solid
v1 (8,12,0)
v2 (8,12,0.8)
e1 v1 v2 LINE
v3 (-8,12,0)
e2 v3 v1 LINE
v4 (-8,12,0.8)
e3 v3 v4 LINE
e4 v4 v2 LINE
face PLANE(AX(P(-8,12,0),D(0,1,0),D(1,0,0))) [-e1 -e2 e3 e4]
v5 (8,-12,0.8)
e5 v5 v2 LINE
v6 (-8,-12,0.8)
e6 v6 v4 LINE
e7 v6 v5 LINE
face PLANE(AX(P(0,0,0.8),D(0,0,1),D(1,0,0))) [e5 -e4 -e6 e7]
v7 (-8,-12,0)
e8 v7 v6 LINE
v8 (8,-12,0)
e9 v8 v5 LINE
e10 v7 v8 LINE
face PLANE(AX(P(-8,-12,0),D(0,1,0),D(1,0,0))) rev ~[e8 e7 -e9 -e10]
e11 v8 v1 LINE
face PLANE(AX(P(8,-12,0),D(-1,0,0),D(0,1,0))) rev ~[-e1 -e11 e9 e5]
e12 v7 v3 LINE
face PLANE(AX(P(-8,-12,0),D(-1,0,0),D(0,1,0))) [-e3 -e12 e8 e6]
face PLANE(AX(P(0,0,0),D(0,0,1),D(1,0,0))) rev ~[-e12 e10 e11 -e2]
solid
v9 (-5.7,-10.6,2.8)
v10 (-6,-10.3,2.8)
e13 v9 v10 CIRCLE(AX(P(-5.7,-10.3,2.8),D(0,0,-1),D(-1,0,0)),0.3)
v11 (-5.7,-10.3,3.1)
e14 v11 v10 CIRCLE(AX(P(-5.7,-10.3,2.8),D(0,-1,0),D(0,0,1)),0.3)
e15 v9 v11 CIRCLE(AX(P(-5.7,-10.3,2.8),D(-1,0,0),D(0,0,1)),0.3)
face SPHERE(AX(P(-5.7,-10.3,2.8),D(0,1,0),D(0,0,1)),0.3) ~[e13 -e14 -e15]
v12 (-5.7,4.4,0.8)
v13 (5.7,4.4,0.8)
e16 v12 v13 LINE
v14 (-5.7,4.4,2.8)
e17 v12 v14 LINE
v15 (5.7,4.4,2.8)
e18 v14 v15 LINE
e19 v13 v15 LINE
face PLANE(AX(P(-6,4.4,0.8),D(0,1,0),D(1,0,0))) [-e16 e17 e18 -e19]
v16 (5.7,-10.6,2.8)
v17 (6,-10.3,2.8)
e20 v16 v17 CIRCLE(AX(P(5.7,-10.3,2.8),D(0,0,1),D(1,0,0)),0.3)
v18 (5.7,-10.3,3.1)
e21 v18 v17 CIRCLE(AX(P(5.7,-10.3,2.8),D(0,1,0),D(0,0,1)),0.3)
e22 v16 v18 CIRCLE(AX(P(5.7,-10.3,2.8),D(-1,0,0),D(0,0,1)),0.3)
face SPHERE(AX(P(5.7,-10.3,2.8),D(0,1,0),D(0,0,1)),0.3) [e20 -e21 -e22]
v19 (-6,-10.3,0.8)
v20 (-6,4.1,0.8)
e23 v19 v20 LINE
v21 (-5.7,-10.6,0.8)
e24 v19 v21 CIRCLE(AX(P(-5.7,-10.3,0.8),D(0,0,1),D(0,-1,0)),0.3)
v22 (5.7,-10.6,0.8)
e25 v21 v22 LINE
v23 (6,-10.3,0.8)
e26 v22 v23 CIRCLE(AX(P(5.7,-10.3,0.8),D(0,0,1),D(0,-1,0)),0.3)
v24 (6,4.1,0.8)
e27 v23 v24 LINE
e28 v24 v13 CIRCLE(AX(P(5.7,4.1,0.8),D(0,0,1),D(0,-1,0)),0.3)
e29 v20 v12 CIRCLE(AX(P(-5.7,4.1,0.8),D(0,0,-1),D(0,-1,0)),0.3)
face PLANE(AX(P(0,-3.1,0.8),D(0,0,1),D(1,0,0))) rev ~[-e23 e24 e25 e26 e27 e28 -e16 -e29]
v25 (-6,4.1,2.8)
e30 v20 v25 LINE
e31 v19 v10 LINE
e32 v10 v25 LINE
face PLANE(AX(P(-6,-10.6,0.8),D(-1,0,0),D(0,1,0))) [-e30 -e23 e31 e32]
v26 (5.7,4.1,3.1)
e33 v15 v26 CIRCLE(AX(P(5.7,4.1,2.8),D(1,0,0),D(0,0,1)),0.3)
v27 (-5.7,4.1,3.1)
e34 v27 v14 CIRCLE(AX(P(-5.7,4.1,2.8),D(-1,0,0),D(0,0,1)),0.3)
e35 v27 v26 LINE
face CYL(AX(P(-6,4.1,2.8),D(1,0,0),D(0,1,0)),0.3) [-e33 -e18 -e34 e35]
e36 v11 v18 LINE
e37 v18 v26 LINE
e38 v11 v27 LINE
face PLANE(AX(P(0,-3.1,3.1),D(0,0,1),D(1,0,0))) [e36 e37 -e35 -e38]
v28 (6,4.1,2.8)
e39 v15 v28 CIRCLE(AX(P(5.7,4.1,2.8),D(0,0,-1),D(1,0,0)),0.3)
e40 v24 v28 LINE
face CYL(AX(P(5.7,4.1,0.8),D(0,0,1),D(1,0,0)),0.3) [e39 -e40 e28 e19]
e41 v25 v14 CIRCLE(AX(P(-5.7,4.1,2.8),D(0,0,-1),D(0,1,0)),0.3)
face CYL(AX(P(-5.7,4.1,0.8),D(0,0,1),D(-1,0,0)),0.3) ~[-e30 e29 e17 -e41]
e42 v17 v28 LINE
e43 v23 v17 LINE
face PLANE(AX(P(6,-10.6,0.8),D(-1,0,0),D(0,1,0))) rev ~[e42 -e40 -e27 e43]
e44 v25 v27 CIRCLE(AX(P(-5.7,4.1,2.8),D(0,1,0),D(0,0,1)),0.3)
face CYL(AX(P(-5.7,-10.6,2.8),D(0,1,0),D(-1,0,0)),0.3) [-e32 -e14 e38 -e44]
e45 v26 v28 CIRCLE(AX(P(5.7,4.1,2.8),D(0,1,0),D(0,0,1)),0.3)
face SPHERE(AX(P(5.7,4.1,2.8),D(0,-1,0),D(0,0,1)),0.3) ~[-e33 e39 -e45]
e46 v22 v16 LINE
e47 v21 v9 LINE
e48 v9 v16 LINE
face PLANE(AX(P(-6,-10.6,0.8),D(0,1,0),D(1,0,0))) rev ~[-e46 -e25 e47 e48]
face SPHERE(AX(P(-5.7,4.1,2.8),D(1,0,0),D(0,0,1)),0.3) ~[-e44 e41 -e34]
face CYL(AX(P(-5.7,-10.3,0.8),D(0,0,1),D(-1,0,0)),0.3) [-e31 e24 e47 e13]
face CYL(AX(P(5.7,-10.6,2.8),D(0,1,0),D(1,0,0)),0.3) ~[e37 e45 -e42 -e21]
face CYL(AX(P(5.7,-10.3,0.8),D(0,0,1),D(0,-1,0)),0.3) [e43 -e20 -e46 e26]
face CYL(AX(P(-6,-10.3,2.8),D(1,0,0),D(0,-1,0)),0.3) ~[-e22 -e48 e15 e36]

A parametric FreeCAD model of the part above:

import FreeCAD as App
import Part
import Sketcher


def edges_at(feature, points):
    """Names of the edges that pass closest to the given points."""
    edges = feature.Shape.Edges
    near = lambda p: min(range(len(edges)), key=lambda i: edges[i].distToShape(Part.Vertex(*p))[0])
    return sorted({f"Edge{near(p) + 1}" for p in points})

doc = App.newDocument("Part")
params = doc.addObject("Spreadsheet::Sheet", "Params")
for row, (alias, value) in enumerate([
    ("sketch1_width", "16 mm"),
    ("sketch1_height", "24 mm"),
    ("pad1_length", "0.8 mm"),
    ("sketch2_width", "12 mm"),
    ("sketch2_height", "15 mm"),
    ("pad2_length", "2.3 mm"),
    ("fillet_radius", "0.3 mm"),
], start=1):
    params.set(f"A{row}", alias)
    params.set(f"B{row}", "=" + value)
    params.setAlias(f"B{row}", alias)

body = doc.addObject("PartDesign::Body", "Body")

sketch1 = doc.addObject("Sketcher::SketchObject", "Sketch")
body.addObject(sketch1)
sketch1.AttachmentSupport = (doc.XY_Plane, [""])
sketch1.MapMode = "FlatFace"
sketch1.addGeometry(Part.LineSegment(App.Vector(-8, 12, 0), App.Vector(-8, -12, 0)), False)
sketch1.addGeometry(Part.LineSegment(App.Vector(-8, -12, 0), App.Vector(8, -12, 0)), False)
sketch1.addGeometry(Part.LineSegment(App.Vector(8, -12, 0), App.Vector(8, 12, 0)), False)
sketch1.addGeometry(Part.LineSegment(App.Vector(8, 12, 0), App.Vector(-8, 12, 0)), False)
sketch1.addConstraint(Sketcher.Constraint("Coincident", 0, 2, 1, 1))
sketch1.addConstraint(Sketcher.Constraint("Coincident", 1, 2, 2, 1))
sketch1.addConstraint(Sketcher.Constraint("Coincident", 2, 2, 3, 1))
sketch1.addConstraint(Sketcher.Constraint("Coincident", 3, 2, 0, 1))
sketch1.addConstraint(Sketcher.Constraint("Vertical", 0))
sketch1.addConstraint(Sketcher.Constraint("Horizontal", 1))
sketch1.addConstraint(Sketcher.Constraint("Vertical", 2))
sketch1.addConstraint(Sketcher.Constraint("Horizontal", 3))
sketch1.addConstraint(Sketcher.Constraint("Symmetric", 0, 2, 2, 2, -1, 1))
sketch1.addConstraint(Sketcher.Constraint("DistanceX", 1, 1, 1, 2, 16.0))
sketch1.addConstraint(Sketcher.Constraint("DistanceY", 0, 2, 0, 1, 24.0))
sketch1.setExpression("Constraints[9]", "Params.sketch1_width")
sketch1.setExpression("Constraints[10]", "Params.sketch1_height")
pad1 = doc.addObject("PartDesign::Pad", "Pad")
body.addObject(pad1)
pad1.Profile = sketch1
pad1.setExpression("Length", "Params.pad1_length")
body2 = doc.addObject("PartDesign::Body", "Body001")

sketch2 = doc.addObject("Sketcher::SketchObject", "Sketch001")
body2.addObject(sketch2)
sketch2.AttachmentSupport = (doc.getObject("XY_Plane001"), [""])
sketch2.MapMode = "FlatFace"
sketch2.AttachmentOffset = App.Placement(App.Vector(0, 0, 0.8), App.Rotation())
sketch2.addGeometry(Part.LineSegment(App.Vector(-6, 4, 0), App.Vector(-6, -11, 0)), False)
sketch2.addGeometry(Part.LineSegment(App.Vector(-6, -11, 0), App.Vector(6, -11, 0)), False)
sketch2.addGeometry(Part.LineSegment(App.Vector(6, -11, 0), App.Vector(6, 4, 0)), False)
sketch2.addGeometry(Part.LineSegment(App.Vector(6, 4, 0), App.Vector(-6, 4, 0)), False)
sketch2.addConstraint(Sketcher.Constraint("Coincident", 0, 2, 1, 1))
sketch2.addConstraint(Sketcher.Constraint("Coincident", 1, 2, 2, 1))
sketch2.addConstraint(Sketcher.Constraint("Coincident", 2, 2, 3, 1))
sketch2.addConstraint(Sketcher.Constraint("Coincident", 3, 2, 0, 1))
sketch2.addConstraint(Sketcher.Constraint("Vertical", 0))
sketch2.addConstraint(Sketcher.Constraint("Horizontal", 1))
sketch2.addConstraint(Sketcher.Constraint("Vertical", 2))
sketch2.addConstraint(Sketcher.Constraint("Horizontal", 3))
sketch2.addConstraint(Sketcher.Constraint("DistanceX", 1, 1, 1, 2, 12.0))
sketch2.addConstraint(Sketcher.Constraint("DistanceY", 0, 2, 0, 1, 15.0))
sketch2.addConstraint(Sketcher.Constraint("DistanceX", 0, 2, -1, 1, 6.0))
sketch2.addConstraint(Sketcher.Constraint("DistanceY", 0, 2, -1, 1, 10.6))
sketch2.setExpression("Constraints[8]", "Params.sketch2_width")
sketch2.setExpression("Constraints[9]", "Params.sketch2_height")
pad2 = doc.addObject("PartDesign::Pad", "Pad001")
body2.addObject(pad2)
pad2.Profile = sketch2
pad2.setExpression("Length", "Params.pad2_length")
doc.recompute()

fillet = doc.addObject("PartDesign::Fillet", "Fillet")
body2.addObject(fillet)
fillet.Base = (pad2, edges_at(pad2, [
    (6, -3.1, 3.1),
    (0, 4.4, 3.1),
    (-6, -3.1, 3.1),
    (0, -10.6, 3.1),
    (-6, 4.4, 1.95),
    (6, 4.4, 1.95),
    (-6, -10.6, 1.95),
    (6, -10.6, 1.95),
]))
fillet.setExpression("Radius", "Params.fillet_radius")

doc.recompute()
